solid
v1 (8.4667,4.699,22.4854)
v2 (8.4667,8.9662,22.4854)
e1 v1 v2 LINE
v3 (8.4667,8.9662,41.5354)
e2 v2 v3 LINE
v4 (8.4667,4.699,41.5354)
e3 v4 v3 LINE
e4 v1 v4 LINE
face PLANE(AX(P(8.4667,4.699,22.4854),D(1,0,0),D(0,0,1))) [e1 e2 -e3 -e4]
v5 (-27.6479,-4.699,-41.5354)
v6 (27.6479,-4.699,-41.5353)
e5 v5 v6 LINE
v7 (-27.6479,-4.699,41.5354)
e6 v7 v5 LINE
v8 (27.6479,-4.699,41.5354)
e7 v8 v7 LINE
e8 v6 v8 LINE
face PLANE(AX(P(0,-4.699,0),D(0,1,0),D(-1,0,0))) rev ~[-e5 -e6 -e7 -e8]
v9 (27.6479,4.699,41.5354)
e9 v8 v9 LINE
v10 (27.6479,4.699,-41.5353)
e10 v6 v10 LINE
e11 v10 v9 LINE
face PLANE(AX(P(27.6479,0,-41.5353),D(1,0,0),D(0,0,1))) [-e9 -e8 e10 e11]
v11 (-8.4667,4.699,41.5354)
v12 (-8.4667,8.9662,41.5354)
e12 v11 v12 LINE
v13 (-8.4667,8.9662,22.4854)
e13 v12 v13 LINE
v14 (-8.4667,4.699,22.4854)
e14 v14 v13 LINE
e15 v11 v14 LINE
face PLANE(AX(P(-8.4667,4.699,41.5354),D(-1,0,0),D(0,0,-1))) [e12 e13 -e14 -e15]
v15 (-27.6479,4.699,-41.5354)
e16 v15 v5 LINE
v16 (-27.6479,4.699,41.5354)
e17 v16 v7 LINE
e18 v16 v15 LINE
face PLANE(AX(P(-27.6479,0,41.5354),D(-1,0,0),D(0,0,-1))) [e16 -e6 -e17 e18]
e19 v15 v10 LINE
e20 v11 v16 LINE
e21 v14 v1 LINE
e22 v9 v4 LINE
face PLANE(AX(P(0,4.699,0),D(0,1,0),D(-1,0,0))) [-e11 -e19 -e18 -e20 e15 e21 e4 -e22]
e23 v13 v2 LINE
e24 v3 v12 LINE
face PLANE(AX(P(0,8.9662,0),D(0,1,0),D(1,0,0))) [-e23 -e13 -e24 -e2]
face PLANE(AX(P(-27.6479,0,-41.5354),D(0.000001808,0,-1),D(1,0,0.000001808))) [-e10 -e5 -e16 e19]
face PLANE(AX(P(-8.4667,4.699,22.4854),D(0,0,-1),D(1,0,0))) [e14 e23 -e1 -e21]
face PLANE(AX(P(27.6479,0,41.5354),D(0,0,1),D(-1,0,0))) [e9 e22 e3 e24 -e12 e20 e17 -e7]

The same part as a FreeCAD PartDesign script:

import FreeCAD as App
import Part
import Sketcher
Q = App.Units.Quantity


def add_polygon(sketch, points):
    """Adds a closed chain of lines whose ends are joined by coincident constraints."""
    first, n = sketch.GeometryCount, len(points)
    for a, b in zip(points, points[1:] + points[:1]):
        sketch.addGeometry(Part.LineSegment(App.Vector(*a, 0), App.Vector(*b, 0)), False)
    for i in range(n):
        sketch.addConstraint(Sketcher.Constraint("Coincident", first + i, 2, first + (i + 1) % n, 1))

doc = App.newDocument("Part")
body = doc.addObject("PartDesign::Body", "Body")

sketch1 = body.newObject("Sketcher::SketchObject", "Sketch")
sketch1.AttachmentSupport = (doc.getObject("XZ_Plane"), [""])
sketch1.MapMode = "FlatFace"
add_polygon(sketch1, [(-28, 42), (28, 42), (28, -42), (-28, -42)])
sketch1.addConstraint([
    Sketcher.Constraint("Horizontal", 0),
    Sketcher.Constraint("Vertical", 1),
    Sketcher.Constraint("Horizontal", 2),
    Sketcher.Constraint("Vertical", 3),
    Sketcher.Constraint("Symmetric", 0, 2, 2, 2, -1, 1),
    Sketcher.Constraint("DistanceX", 0, 1, 0, 2, Q("2.177 in")),
    Sketcher.Constraint("DistanceY", 1, 2, 1, 1, Q("3.2705 in")),
])
pad1 = body.newObject("PartDesign::Pad", "Pad")
pad1.Profile = sketch1
pad1.Length = Q("0.37 in")
pad1.Midplane = True

sketch2 = body.newObject("Sketcher::SketchObject", "Sketch001")
sketch2.AttachmentSupport = (doc.getObject("XZ_Plane"), [""])
sketch2.MapMode = "FlatFace"
sketch2.AttachmentOffset = App.Placement(App.Vector(0, 0, -0.185 * 25.4), App.Rotation())
add_polygon(sketch2, [(-8, 42), (8, 42), (8, 22), (-8, 22)])
sketch2.addConstraint([
    Sketcher.Constraint("Horizontal", 0),
    Sketcher.Constraint("Vertical", 1),
    Sketcher.Constraint("Horizontal", 2),
    Sketcher.Constraint("Vertical", 3),
    Sketcher.Constraint("DistanceY", 1, 2, 1, 1, Q("0.75 in")),
    Sketcher.Constraint("DistanceX", 0, 1, 0, 2, 16.9334),
    Sketcher.Constraint("DistanceX", -1, 1, 0, 2, 8.4667),
    Sketcher.Constraint("DistanceY", -1, 1, 0, 2, 41.5354),
])
pad2 = body.newObject("PartDesign::Pad", "Pad001")
pad2.Profile = sketch2
pad2.Length = Q("0.168 in")
pad2.Reversed = True

doc.recompute()
